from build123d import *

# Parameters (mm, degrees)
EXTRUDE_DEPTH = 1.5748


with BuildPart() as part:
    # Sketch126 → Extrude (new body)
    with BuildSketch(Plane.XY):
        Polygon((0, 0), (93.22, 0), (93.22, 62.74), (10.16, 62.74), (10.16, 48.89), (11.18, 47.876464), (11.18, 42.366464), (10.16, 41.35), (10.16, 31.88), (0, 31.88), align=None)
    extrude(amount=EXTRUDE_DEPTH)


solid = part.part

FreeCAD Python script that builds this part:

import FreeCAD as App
import Part
import Sketcher
from FreeCAD import Vector
Q = App.Units.Quantity


def add_polygon(sketch, points):
    """Adds a closed chain of lines whose ends are joined by coincident constraints."""
    first, n = sketch.GeometryCount, len(points)
    for a, b in zip(points, points[1:] + points[:1]):
        sketch.addGeometry(Part.LineSegment(App.Vector(*a, 0), App.Vector(*b, 0)), False)
    for i in range(n):
        sketch.addConstraint(Sketcher.Constraint("Coincident", first + i, 2, first + (i + 1) % n, 1))

doc = App.newDocument("Part")
body = doc.addObject("PartDesign::Body", "Body")

sketch1 = body.newObject("Sketcher::SketchObject", "Sketch")
sketch1.AttachmentSupport = (doc.getObject("XY_Plane"), [""])
sketch1.MapMode = "FlatFace"
add_polygon(sketch1, [(0, 0), (93.2, 0), (93.2, 62.7), (10.2, 62.7), (10.2, 48.9), (11.2, 47.9), (11.2, 42.4), (10.2, 41.4), (10.2, 31.9), (0, 31.9)])
sketch1.addConstraint([
    Sketcher.Constraint("Horizontal", 0),
    Sketcher.Constraint("Vertical", 1),
    Sketcher.Constraint("Horizontal", 2),
    Sketcher.Constraint("Vertical", 3),
    Sketcher.Constraint("Vertical", 5),
    Sketcher.Constraint("Vertical", 7),
    Sketcher.Constraint("Horizontal", 8),
    Sketcher.Constraint("Vertical", 9),
    Sketcher.Constraint("Coincident", 9, 2, -1, 1),
    Sketcher.Constraint("Vertical", 3, 2, 6, 2),
    Sketcher.Constraint("DistanceX", 8, 2, 8, 1, Q("0.4 in")),
    Sketcher.Constraint("DistanceX", 0, 1, 0, 2, Q("93.22 mm")),
    Sketcher.Constraint("DistanceY", 1, 1, 1, 2, Q("62.74 mm")),
    Sketcher.Constraint("DistanceY", 3, 2, 3, 1, Q("13.85 mm")),
    Sketcher.Constraint("DistanceY", 5, 2, 5, 1, Q("5.51 mm")),
    Sketcher.Constraint("DistanceY", 7, 2, 7, 1, Q("9.47 mm")),
    Sketcher.Constraint("DistanceY", 9, 2, 9, 1, Q("31.88 mm")),
    Sketcher.Constraint("DistanceY", -1, 1, 4, 2, Q("1.8849002 in")),
    Sketcher.Constraint("Distance", 6, Q("1.44 mm")),
])
pad1 = body.newObject("PartDesign::Pad", "Pad")
pad1.Profile = sketch1
pad1.Length = Q("0.062 in")

doc.recompute()
